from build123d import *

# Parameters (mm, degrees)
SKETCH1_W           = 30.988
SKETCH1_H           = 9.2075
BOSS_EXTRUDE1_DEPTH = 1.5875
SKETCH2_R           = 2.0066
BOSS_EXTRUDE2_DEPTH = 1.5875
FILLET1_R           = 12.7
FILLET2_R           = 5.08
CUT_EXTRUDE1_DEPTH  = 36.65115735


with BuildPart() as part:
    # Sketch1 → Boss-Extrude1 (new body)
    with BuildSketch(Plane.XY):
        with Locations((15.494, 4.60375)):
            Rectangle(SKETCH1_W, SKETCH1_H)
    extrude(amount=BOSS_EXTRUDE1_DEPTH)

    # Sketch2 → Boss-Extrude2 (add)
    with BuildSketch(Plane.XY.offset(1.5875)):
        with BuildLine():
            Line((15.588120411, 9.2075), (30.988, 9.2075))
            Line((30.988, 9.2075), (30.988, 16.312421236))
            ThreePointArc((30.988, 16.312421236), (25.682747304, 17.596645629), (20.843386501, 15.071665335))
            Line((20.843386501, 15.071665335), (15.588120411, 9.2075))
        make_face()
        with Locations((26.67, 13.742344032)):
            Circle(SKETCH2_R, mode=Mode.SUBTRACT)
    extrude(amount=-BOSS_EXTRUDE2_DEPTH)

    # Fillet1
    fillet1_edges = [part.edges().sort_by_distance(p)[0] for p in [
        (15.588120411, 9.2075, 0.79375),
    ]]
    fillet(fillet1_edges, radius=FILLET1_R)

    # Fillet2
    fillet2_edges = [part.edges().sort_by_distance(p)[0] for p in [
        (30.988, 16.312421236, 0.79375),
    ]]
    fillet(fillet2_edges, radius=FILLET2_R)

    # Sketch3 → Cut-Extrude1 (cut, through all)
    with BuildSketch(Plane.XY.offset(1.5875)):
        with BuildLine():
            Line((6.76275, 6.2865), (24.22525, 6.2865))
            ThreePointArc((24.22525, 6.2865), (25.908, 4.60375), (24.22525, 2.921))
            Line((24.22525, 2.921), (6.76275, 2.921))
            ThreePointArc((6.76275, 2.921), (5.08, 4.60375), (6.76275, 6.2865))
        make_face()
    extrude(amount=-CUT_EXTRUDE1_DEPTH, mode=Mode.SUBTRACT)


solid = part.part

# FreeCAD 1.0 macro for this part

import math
import FreeCAD as App
import Part
import Sketcher

V = App.Vector
Q = App.Units.Quantity


def edges_at(feature, points):
    """Names of the edges that pass closest to the given points."""
    edges = feature.Shape.Edges
    near = lambda p: min(range(len(edges)), key=lambda i: edges[i].distToShape(Part.Vertex(*p))[0])
    return sorted({f"Edge{near(p) + 1}" for p in points})

doc = App.newDocument("Part")
body = doc.addObject("PartDesign::Body", "Body")

# Sketch on XY plane
sketch1 = doc.addObject("Sketcher::SketchObject", "Sketch")
body.addObject(sketch1)
sketch1.AttachmentSupport = (doc.XY_Plane, [""])
sketch1.MapMode = "FlatFace"
sketch1.addGeometry(Part.LineSegment(V(0, 9, 0), V(0, 0, 0)), False)
sketch1.addGeometry(Part.LineSegment(V(0, 0, 0), V(31, 0, 0)), False)
sketch1.addGeometry(Part.LineSegment(V(31, 0, 0), V(31, 9, 0)), False)
sketch1.addGeometry(Part.LineSegment(V(31, 9, 0), V(0, 9, 0)), False)
sketch1.addConstraint(Sketcher.Constraint("Coincident", 0, 2, 1, 1))
sketch1.addConstraint(Sketcher.Constraint("Coincident", 1, 2, 2, 1))
sketch1.addConstraint(Sketcher.Constraint("Coincident", 2, 2, 3, 1))
sketch1.addConstraint(Sketcher.Constraint("Coincident", 3, 2, 0, 1))
sketch1.addConstraint(Sketcher.Constraint("Vertical", 0))
sketch1.addConstraint(Sketcher.Constraint("Horizontal", 1))
sketch1.addConstraint(Sketcher.Constraint("Vertical", 2))
sketch1.addConstraint(Sketcher.Constraint("Horizontal", 3))
sketch1.addConstraint(Sketcher.Constraint("Coincident", 0, 2, -1, 1))
sketch1.addConstraint(Sketcher.Constraint("DistanceX", 1, 1, 1, 2, Q("1.22 in")))
sketch1.addConstraint(Sketcher.Constraint("DistanceY", 0, 2, 0, 1, Q("0.3625 in")))
pad1 = doc.addObject("PartDesign::Pad", "Pad")
body.addObject(pad1)
pad1.Profile = sketch1
pad1.Length = Q("0.0625 in")

# Sketch on XY plane
sketch2 = doc.addObject("Sketcher::SketchObject", "Sketch001")
body.addObject(sketch2)
sketch2.AttachmentSupport = (doc.XY_Plane, [""])
sketch2.MapMode = "FlatFace"
sketch2.AttachmentOffset = App.Placement(V(0, 0, 0.0625 * 25.4), App.Rotation())
sketch2.addGeometry(Part.LineSegment(V(15.6, 9.2, 0), V(31, 9.2, 0)), False)
sketch2.addGeometry(Part.LineSegment(V(31, 9.2, 0), V(31, 16.3, 0)), False)
sketch2.addGeometry(Part.ArcOfCircle(Part.Circle(V(26.6, 9.9, 0), V(0, 0, 1), 7.8), math.radians(56), math.radians(138)), False)
sketch2.addGeometry(Part.LineSegment(V(20.8, 15.1, 0), V(15.6, 9.2, 0)), False)
sketch2.addGeometry(Part.Circle(V(26.7, 13.7, 0), V(0, 0, 1), 2), False)
sketch2.addConstraint(Sketcher.Constraint("Coincident", 0, 2, 1, 1))
sketch2.addConstraint(Sketcher.Constraint("Coincident", 1, 2, 2, 1))
sketch2.addConstraint(Sketcher.Constraint("Tangent", 2, 2, 3, 1))
sketch2.addConstraint(Sketcher.Constraint("Coincident", 3, 2, 0, 1))
sketch2.addConstraint(Sketcher.Constraint("Horizontal", 0))
sketch2.addConstraint(Sketcher.Constraint("Vertical", 1))
sketch2.addConstraint(Sketcher.Constraint("Diameter", 4, Q("0.158 in")))
sketch2.addConstraint(Sketcher.Constraint("DistanceX", -1, 1, 4, 3, Q("1.05 in")))
sketch2.addConstraint(Sketcher.Constraint("DistanceX", -1, 1, 0, 2, Q("1.22 in")))
sketch2.addConstraint(Sketcher.Constraint("Radius", 2, Q("7.763972 mm")))
sketch2.addConstraint(Sketcher.Constraint("DistanceY", -1, 1, 0, 2, Q("0.3625 in")))
sketch2.addConstraint(Sketcher.Constraint("DistanceX", 0, 1, 0, 2, Q("15.39988 mm")))
sketch2.addConstraint(Sketcher.Constraint("DistanceY", 1, 1, 1, 2, Q("7.104921 mm")))
sketch2.addConstraint(Sketcher.Constraint("DistanceY", -1, 1, 2, 3, Q("9.890101 mm")))
sketch2.addConstraint(Sketcher.Constraint("DistanceY", 4, 3, 2, 2, Q("1.329321 mm")))
pad2 = doc.addObject("PartDesign::Pad", "Pad001")
body.addObject(pad2)
pad2.Profile = sketch2
pad2.Length = Q("0.0625 in")
pad2.Reversed = True
doc.recompute()

fillet = doc.addObject("PartDesign::Fillet", "Fillet")
body.addObject(fillet)
fillet.Base = (pad2, edges_at(pad2, [(15.588, 9.207, 0.794)]))
fillet.Radius = Q("0.5 in")
doc.recompute()

fillet2 = doc.addObject("PartDesign::Fillet", "Fillet001")
body.addObject(fillet2)
fillet2.Base = (fillet, edges_at(fillet, [(30.988, 16.312, 0.794)]))
fillet2.Radius = Q("0.2 in")

# Sketch on XY plane
sketch3 = doc.addObject("Sketcher::SketchObject", "Sketch002")
body.addObject(sketch3)
sketch3.AttachmentSupport = (doc.XY_Plane, [""])
sketch3.MapMode = "FlatFace"
sketch3.AttachmentOffset = App.Placement(V(0, 0, 0.0625 * 25.4), App.Rotation())
sketch3.addGeometry(Part.LineSegment(V(24.2, 6.3, 0), V(6.8, 6.3, 0)), False)
sketch3.addGeometry(Part.ArcOfCircle(Part.Circle(V(6.8, 4.6, 0), V(0, 0, 1), 1.7), math.radians(90), math.radians(270)), False)
sketch3.addGeometry(Part.LineSegment(V(6.8, 2.9, 0), V(24.2, 2.9, 0)), False)
sketch3.addGeometry(Part.ArcOfCircle(Part.Circle(V(24.2, 4.6, 0), V(0, 0, 1), 1.7), math.radians(-90), math.radians(90)), False)
sketch3.addConstraint(Sketcher.Constraint("Tangent", 0, 2, 1, 1))
sketch3.addConstraint(Sketcher.Constraint("Tangent", 1, 2, 2, 1))
sketch3.addConstraint(Sketcher.Constraint("Tangent", 2, 2, 3, 1))
sketch3.addConstraint(Sketcher.Constraint("Tangent", 3, 2, 0, 1))
sketch3.addConstraint(Sketcher.Constraint("Horizontal", 0))
sketch3.addConstraint(Sketcher.Constraint("Horizontal", 2))
sketch3.addConstraint(Sketcher.Constraint("DistanceX", 0, 2, 0, 1, Q("0.6875 in")))
sketch3.addConstraint(Sketcher.Constraint("DistanceY", -1, 1, 1, 2, Q("0.115 in")))
sketch3.addConstraint(Sketcher.Constraint("Radius", 1, Q("1.68275 mm")))
sketch3.addConstraint(Sketcher.Constraint("DistanceX", -1, 1, 1, 3, Q("6.76275 mm")))
pocket1 = doc.addObject("PartDesign::Pocket", "Pocket")
body.addObject(pocket1)
pocket1.Profile = sketch3
pocket1.Type = "ThroughAll"

doc.recompute()
